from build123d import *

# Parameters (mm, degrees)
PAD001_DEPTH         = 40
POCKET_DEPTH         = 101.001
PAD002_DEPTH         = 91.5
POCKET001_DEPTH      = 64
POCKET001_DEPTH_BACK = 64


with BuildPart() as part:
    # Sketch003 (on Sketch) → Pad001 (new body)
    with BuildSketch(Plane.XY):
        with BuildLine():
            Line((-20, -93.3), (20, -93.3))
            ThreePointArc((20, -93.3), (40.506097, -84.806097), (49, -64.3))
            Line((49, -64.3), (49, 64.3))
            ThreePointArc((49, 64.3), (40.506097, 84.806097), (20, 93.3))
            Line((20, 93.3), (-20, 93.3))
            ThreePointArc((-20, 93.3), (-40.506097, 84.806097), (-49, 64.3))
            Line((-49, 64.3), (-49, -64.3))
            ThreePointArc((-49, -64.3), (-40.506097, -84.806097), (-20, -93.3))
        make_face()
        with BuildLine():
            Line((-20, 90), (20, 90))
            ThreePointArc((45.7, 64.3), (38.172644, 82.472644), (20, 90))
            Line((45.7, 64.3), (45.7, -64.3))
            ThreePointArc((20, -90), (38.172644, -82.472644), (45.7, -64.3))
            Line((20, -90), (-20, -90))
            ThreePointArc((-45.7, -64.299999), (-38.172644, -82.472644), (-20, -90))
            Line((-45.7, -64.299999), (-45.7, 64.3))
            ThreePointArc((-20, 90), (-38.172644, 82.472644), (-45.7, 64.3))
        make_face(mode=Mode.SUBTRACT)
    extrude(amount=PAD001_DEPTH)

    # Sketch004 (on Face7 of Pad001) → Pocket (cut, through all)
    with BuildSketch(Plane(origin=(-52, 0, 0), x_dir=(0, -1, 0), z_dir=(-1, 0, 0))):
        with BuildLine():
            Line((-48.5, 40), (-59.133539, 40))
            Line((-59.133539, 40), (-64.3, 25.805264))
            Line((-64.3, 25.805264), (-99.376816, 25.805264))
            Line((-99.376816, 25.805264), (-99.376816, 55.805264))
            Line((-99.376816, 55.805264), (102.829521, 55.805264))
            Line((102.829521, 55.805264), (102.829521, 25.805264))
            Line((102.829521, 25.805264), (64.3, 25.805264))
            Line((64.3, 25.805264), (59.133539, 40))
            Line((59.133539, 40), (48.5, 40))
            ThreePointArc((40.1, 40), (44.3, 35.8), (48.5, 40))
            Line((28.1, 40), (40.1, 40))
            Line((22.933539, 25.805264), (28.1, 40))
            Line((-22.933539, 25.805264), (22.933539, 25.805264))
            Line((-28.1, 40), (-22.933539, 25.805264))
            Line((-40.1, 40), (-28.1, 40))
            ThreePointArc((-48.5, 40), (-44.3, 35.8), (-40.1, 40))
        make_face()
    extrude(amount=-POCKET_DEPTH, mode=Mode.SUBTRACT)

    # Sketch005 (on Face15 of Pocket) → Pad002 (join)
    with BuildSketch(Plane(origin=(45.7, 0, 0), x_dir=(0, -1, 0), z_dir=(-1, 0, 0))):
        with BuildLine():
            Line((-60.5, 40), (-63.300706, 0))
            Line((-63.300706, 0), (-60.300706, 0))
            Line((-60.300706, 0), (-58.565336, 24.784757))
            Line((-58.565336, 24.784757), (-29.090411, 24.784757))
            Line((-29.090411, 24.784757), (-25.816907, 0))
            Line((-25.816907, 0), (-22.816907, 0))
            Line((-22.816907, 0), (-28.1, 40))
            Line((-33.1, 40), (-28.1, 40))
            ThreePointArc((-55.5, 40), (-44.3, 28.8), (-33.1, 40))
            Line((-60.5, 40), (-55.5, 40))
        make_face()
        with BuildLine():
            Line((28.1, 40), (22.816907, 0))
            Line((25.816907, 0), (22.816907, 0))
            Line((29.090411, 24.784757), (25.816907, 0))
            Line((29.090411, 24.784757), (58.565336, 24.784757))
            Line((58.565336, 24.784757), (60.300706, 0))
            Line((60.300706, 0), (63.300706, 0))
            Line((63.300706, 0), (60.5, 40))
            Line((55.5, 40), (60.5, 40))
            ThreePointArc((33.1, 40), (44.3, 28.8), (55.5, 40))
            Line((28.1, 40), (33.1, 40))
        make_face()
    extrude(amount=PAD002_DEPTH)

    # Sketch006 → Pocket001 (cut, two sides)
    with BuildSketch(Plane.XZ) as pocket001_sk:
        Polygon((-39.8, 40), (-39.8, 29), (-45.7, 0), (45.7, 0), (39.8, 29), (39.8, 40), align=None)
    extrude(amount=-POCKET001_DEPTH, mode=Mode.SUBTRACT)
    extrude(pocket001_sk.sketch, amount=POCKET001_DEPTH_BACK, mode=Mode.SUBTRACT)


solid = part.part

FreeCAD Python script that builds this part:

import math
import FreeCAD as App
import Part
import Sketcher

V = App.Vector
Q = App.Units.Quantity


def add_polygon(sketch, points):
    """Adds a closed chain of lines whose ends are joined by coincident constraints."""
    first, n = sketch.GeometryCount, len(points)
    for a, b in zip(points, points[1:] + points[:1]):
        sketch.addGeometry(Part.LineSegment(App.Vector(*a, 0), App.Vector(*b, 0)), False)
    for i in range(n):
        sketch.addConstraint(Sketcher.Constraint("Coincident", first + i, 2, first + (i + 1) % n, 1))

doc = App.newDocument("Part")
body = doc.addObject("PartDesign::Body", "Body")

# Sketch on XY plane
sketch1 = body.newObject("Sketcher::SketchObject", "Sketch")
sketch1.AttachmentSupport = (doc.getObject("XY_Plane"), [""])
sketch1.MapMode = "FlatFace"
sketch1.addGeometry([
    Part.LineSegment(V(-20, -93, 0), V(20, -93, 0)),  # 0
    Part.ArcOfCircle(Part.Circle(V(20, -64, 0), V(0, 0, 1), 29), math.radians(-90), math.radians(0)),  # 1
    Part.LineSegment(V(49, -64, 0), V(49, 64, 0)),  # 2
    Part.ArcOfCircle(Part.Circle(V(20, 64, 0), V(0, 0, 1), 29), math.radians(0), math.radians(90)),  # 3
    Part.LineSegment(V(20, 93, 0), V(-20, 93, 0)),  # 4
    Part.ArcOfCircle(Part.Circle(V(-20, 64, 0), V(0, 0, 1), 29), math.radians(90), math.radians(180)),  # 5
    Part.LineSegment(V(-49, 64, 0), V(-49, -64, 0)),  # 6
    Part.ArcOfCircle(Part.Circle(V(-20, -64, 0), V(0, 0, 1), 29), math.radians(180), math.radians(270)),  # 7
    Part.ArcOfCircle(Part.Circle(V(-20, 64, 0), V(0, 0, 1), 26), math.radians(90), math.radians(180)),  # 8
    Part.LineSegment(V(-20, 90, 0), V(20, 90, 0)),  # 9
    Part.ArcOfCircle(Part.Circle(V(20, 64, 0), V(0, 0, 1), 26), math.radians(0), math.radians(90)),  # 10
    Part.LineSegment(V(46, 64, 0), V(46, -64, 0)),  # 11
    Part.ArcOfCircle(Part.Circle(V(20, -64, 0), V(0, 0, 1), 26), math.radians(-90), math.radians(0)),  # 12
    Part.LineSegment(V(20, -90, 0), V(-20, -90, 0)),  # 13
    Part.ArcOfCircle(Part.Circle(V(-20, -64, 0), V(0, 0, 1), 26), math.radians(180), math.radians(270)),  # 14
    Part.LineSegment(V(-46, -64, 0), V(-46, 64, 0)),  # 15
], False)
sketch1.addConstraint([
    Sketcher.Constraint("Tangent", 0, 2, 1, 1),
    Sketcher.Constraint("Tangent", 1, 2, 2, 1),
    Sketcher.Constraint("Tangent", 2, 2, 3, 1),
    Sketcher.Constraint("Tangent", 3, 2, 4, 1),
    Sketcher.Constraint("Tangent", 4, 2, 5, 1),
    Sketcher.Constraint("Tangent", 5, 2, 6, 1),
    Sketcher.Constraint("Tangent", 6, 2, 7, 1),
    Sketcher.Constraint("Tangent", 7, 2, 0, 1),
    Sketcher.Constraint("Tangent", 8, 1, 9, 1),
    Sketcher.Constraint("Tangent", 9, 2, 10, 2),
    Sketcher.Constraint("Tangent", 10, 1, 11, 1),
    Sketcher.Constraint("Tangent", 11, 2, 12, 2),
    Sketcher.Constraint("Tangent", 12, 1, 13, 1),
    Sketcher.Constraint("Tangent", 13, 2, 14, 2),
    Sketcher.Constraint("Tangent", 14, 1, 15, 1),
    Sketcher.Constraint("Tangent", 15, 2, 8, 2),
    Sketcher.Constraint("Horizontal", 0),
    Sketcher.Constraint("Vertical", 2),
    Sketcher.Constraint("Horizontal", 4),
    Sketcher.Constraint("Vertical", 6),
    Sketcher.Constraint("Horizontal", 9),
    Sketcher.Constraint("Vertical", 11),
    Sketcher.Constraint("Horizontal", 13),
    Sketcher.Constraint("Vertical", 15),
    Sketcher.Constraint("Coincident", 8, 3, 5, 3),
    Sketcher.Constraint("Coincident", 10, 3, 3, 3),
    Sketcher.Constraint("Coincident", 12, 3, 1, 3),
    Sketcher.Constraint("Equal", 1, 3),
    Sketcher.Constraint("Equal", 3, 5),
    Sketcher.Constraint("Equal", 5, 7),
    Sketcher.Constraint("Equal", 12, 14),
    Sketcher.Constraint("Symmetric", 1, 3, 5, 3, -1, 1),
    Sketcher.Constraint("Radius", 1, 28.999999),
    Sketcher.Constraint("Radius", 8, 25.700001),
    Sketcher.Constraint("DistanceX", 0, 1, 0, 2, 40.0),
    Sketcher.Constraint("DistanceY", 2, 1, 2, 2, 128.6),
])
pad1 = body.newObject("PartDesign::Pad", "Pad")
pad1.Profile = sketch1
pad1.Length = 40

# Sketch on YZ plane
sketch2 = body.newObject("Sketcher::SketchObject", "Sketch001")
sketch2.AttachmentSupport = (doc.getObject("YZ_Plane"), [""])
sketch2.MapMode = "FlatFace"
sketch2.AttachmentOffset = App.Placement(V(0, 0, -52), App.Rotation())
sketch2.addGeometry([
    Part.LineSegment(V(59.1, 40, 0), V(48.5, 40, 0)),  # 0
    Part.ArcOfCircle(Part.Circle(V(44.3, 40, 0), V(0, 0, 1), 4.2), math.radians(180), math.radians(360)),  # 1
    Part.LineSegment(V(40.1, 40, 0), V(28.1, 40, 0)),  # 2
    Part.LineSegment(V(28.1, 40, 0), V(22.9, 25.8, 0)),  # 3
    Part.LineSegment(V(22.9, 25.8, 0), V(-22.9, 25.8, 0)),  # 4
    Part.LineSegment(V(-22.9, 25.8, 0), V(-28.1, 40, 0)),  # 5
    Part.LineSegment(V(-28.1, 40, 0), V(-40.1, 40, 0)),  # 6
    Part.ArcOfCircle(Part.Circle(V(-44.3, 40, 0), V(0, 0, 1), 4.2), math.radians(180), math.radians(360)),  # 7
    Part.LineSegment(V(-48.5, 40, 0), V(-59.1, 40, 0)),  # 8
    Part.LineSegment(V(-59.1, 40, 0), V(-64.3, 25.8, 0)),  # 9
    Part.LineSegment(V(-64.3, 25.8, 0), V(-102.8, 25.8, 0)),  # 10
    Part.LineSegment(V(-102.8, 25.8, 0), V(-102.8, 55.8, 0)),  # 11
    Part.LineSegment(V(-102.8, 55.8, 0), V(99.4, 55.8, 0)),  # 12
    Part.LineSegment(V(99.4, 55.8, 0), V(99.4, 25.8, 0)),  # 13
    Part.LineSegment(V(99.4, 25.8, 0), V(64.3, 25.8, 0)),  # 14
    Part.LineSegment(V(64.3, 25.8, 0), V(59.1, 40, 0)),  # 15
], False)
sketch2.addConstraint([
    Sketcher.Constraint("Coincident", 0, 2, 1, 2),
    Sketcher.Constraint("Coincident", 1, 1, 2, 1),
    Sketcher.Constraint("Coincident", 2, 2, 3, 1),
    Sketcher.Constraint("Coincident", 3, 2, 4, 1),
    Sketcher.Constraint("Coincident", 4, 2, 5, 1),
    Sketcher.Constraint("Coincident", 5, 2, 6, 1),
    Sketcher.Constraint("Coincident", 6, 2, 7, 2),
    Sketcher.Constraint("Coincident", 7, 1, 8, 1),
    Sketcher.Constraint("Coincident", 8, 2, 9, 1),
    Sketcher.Constraint("Coincident", 9, 2, 10, 1),
    Sketcher.Constraint("Coincident", 10, 2, 11, 1),
    Sketcher.Constraint("Coincident", 11, 2, 12, 1),
    Sketcher.Constraint("Coincident", 12, 2, 13, 1),
    Sketcher.Constraint("Coincident", 13, 2, 14, 1),
    Sketcher.Constraint("Coincident", 14, 2, 15, 1),
    Sketcher.Constraint("Coincident", 15, 2, 0, 1),
    Sketcher.Constraint("Horizontal", 0),
    Sketcher.Constraint("Horizontal", 2),
    Sketcher.Constraint("Horizontal", 4),
    Sketcher.Constraint("Horizontal", 6),
    Sketcher.Constraint("Horizontal", 8),
    Sketcher.Constraint("Horizontal", 10),
    Sketcher.Constraint("Vertical", 11),
    Sketcher.Constraint("Horizontal", 12),
    Sketcher.Constraint("Vertical", 13),
    Sketcher.Constraint("Horizontal", 14),
    Sketcher.Constraint("Equal", 1, 7),
    Sketcher.Constraint("Symmetric", 1, 3, 7, 3, -2),
    Sketcher.Constraint("Symmetric", 2, 2, 5, 2, -2),
    Sketcher.Constraint("Symmetric", 9, 2, 14, 2, -2),
    Sketcher.Constraint("Symmetric", 8, 2, 15, 2, -2),
    Sketcher.Constraint("Parallel", 3, 9),
    Sketcher.Constraint("Parallel", 5, 15),
    Sketcher.Constraint("Horizontal", 7, 3, 0, 2),
    Sketcher.Constraint("Horizontal", 0, 2, 1, 1),
    Sketcher.Constraint("Horizontal", 4, 2, 9, 2),
    Sketcher.Constraint("Radius", 1, 4.2),
    Sketcher.Constraint("DistanceX", 2, 2, 2, 1, 12.0),
    Sketcher.Constraint("DistanceY", 11, 1, 11, 2, 30.0),
    Sketcher.Constraint("Angle", 3, Q("-109.999999 deg")),
    Sketcher.Constraint("DistanceY", -1, 1, 1, 3, 40.0),
    Sketcher.Constraint("DistanceX", 9, 2, 7, 3, 20.0),
    Sketcher.Constraint("DistanceX", -1, 1, 1, 3, 44.3),
    Sketcher.Constraint("DistanceX", 0, 2, 0, 1, 10.633539),
    Sketcher.Constraint("DistanceX", 10, 2, 10, 1, 38.529521),
    Sketcher.Constraint("DistanceX", 12, 1, 12, 2, 202.206337),
])
pocket1 = body.newObject("PartDesign::Pocket", "Pocket")
pocket1.Profile = sketch2
pocket1.Type = "ThroughAll"
pocket1.Reversed = True

# Sketch on YZ plane
sketch3 = body.newObject("Sketcher::SketchObject", "Sketch002")
sketch3.AttachmentSupport = (doc.getObject("YZ_Plane"), [""])
sketch3.MapMode = "FlatFace"
sketch3.AttachmentOffset = App.Placement(V(0, 0, 45.7), App.Rotation())
sketch3.addGeometry([
    Part.LineSegment(V(60.5, 40, 0), V(63.3, 0, 0)),  # 0
    Part.LineSegment(V(63.3, 0, 0), V(60.3, 0, 0)),  # 1
    Part.LineSegment(V(60.3, 0, 0), V(58.6, 24.8, 0)),  # 2
    Part.LineSegment(V(58.6, 24.8, 0), V(29.1, 24.8, 0)),  # 3
    Part.LineSegment(V(29.1, 24.8, 0), V(25.8, 0, 0)),  # 4
    Part.LineSegment(V(25.8, 0, 0), V(22.8, 0, 0)),  # 5
    Part.LineSegment(V(22.8, 0, 0), V(28.1, 40, 0)),  # 6
    Part.LineSegment(V(28.1, 40, 0), V(33.1, 40, 0)),  # 7
    Part.ArcOfCircle(Part.Circle(V(44.3, 40, 0), V(0, 0, 1), 11.2), math.radians(180), math.radians(360)),  # 8
    Part.LineSegment(V(55.5, 40, 0), V(60.5, 40, 0)),  # 9
    Part.LineSegment(V(-28.1, 40, 0), V(-22.8, 0, 0)),  # 10
    Part.LineSegment(V(-22.8, 0, 0), V(-25.8, 0, 0)),  # 11
    Part.LineSegment(V(-25.8, 0, 0), V(-29.1, 24.8, 0)),  # 12
    Part.LineSegment(V(-29.1, 24.8, 0), V(-58.6, 24.8, 0)),  # 13
    Part.LineSegment(V(-58.6, 24.8, 0), V(-60.3, 0, 0)),  # 14
    Part.LineSegment(V(-60.3, 0, 0), V(-63.3, 0, 0)),  # 15
    Part.LineSegment(V(-63.3, 0, 0), V(-60.5, 40, 0)),  # 16
    Part.LineSegment(V(-60.5, 40, 0), V(-55.5, 40, 0)),  # 17
    Part.ArcOfCircle(Part.Circle(V(-44.3, 40, 0), V(0, 0, 1), 11.2), math.radians(180), math.radians(360)),  # 18
    Part.LineSegment(V(-33.1, 40, 0), V(-28.1, 40, 0)),  # 19
], False)
sketch3.addConstraint([
    Sketcher.Constraint("Coincident", 0, 2, 1, 1),
    Sketcher.Constraint("Coincident", 1, 2, 2, 1),
    Sketcher.Constraint("Coincident", 2, 2, 3, 1),
    Sketcher.Constraint("Coincident", 3, 2, 4, 1),
    Sketcher.Constraint("Coincident", 4, 2, 5, 1),
    Sketcher.Constraint("Coincident", 5, 2, 6, 1),
    Sketcher.Constraint("Coincident", 6, 2, 7, 1),
    Sketcher.Constraint("Coincident", 7, 2, 8, 1),
    Sketcher.Constraint("Coincident", 8, 2, 9, 1),
    Sketcher.Constraint("Coincident", 9, 2, 0, 1),
    Sketcher.Constraint("Coincident", 10, 2, 11, 1),
    Sketcher.Constraint("Coincident", 11, 2, 12, 1),
    Sketcher.Constraint("Coincident", 12, 2, 13, 1),
    Sketcher.Constraint("Coincident", 13, 2, 14, 1),
    Sketcher.Constraint("Coincident", 14, 2, 15, 1),
    Sketcher.Constraint("Coincident", 15, 2, 16, 1),
    Sketcher.Constraint("Coincident", 16, 2, 17, 1),
    Sketcher.Constraint("Coincident", 17, 2, 18, 1),
    Sketcher.Constraint("Coincident", 18, 2, 19, 1),
    Sketcher.Constraint("Coincident", 19, 2, 10, 1),
    Sketcher.Constraint("Horizontal", 1),
    Sketcher.Constraint("Horizontal", 3),
    Sketcher.Constraint("Horizontal", 5),
    Sketcher.Constraint("Horizontal", 7),
    Sketcher.Constraint("Horizontal", 9),
    Sketcher.Constraint("Horizontal", 11),
    Sketcher.Constraint("Horizontal", 13),
    Sketcher.Constraint("Horizontal", 15),
    Sketcher.Constraint("Horizontal", 17),
    Sketcher.Constraint("Horizontal", 19),
    Sketcher.Constraint("Equal", 8, 18),
    Sketcher.Constraint("Symmetric", 5, 2, 10, 2, -1, 1),
    Sketcher.Constraint("Symmetric", 1, 2, 14, 2, -1, 1),
    Sketcher.Constraint("Symmetric", 8, 3, 18, 3, -2),
    Sketcher.Constraint("Symmetric", 4, 2, 11, 2, -2),
    Sketcher.Constraint("Symmetric", 3, 2, 12, 2, -2),
    Sketcher.Constraint("Symmetric", 0, 2, 15, 2, -2),
    Sketcher.Constraint("Symmetric", 9, 2, 16, 2, -2),
    Sketcher.Constraint("Symmetric", 6, 2, 19, 2, -2),
    Sketcher.Constraint("Parallel", 0, 2),
    Sketcher.Constraint("Parallel", 4, 6),
    Sketcher.Constraint("Parallel", 14, 16),
    Sketcher.Constraint("Horizontal", 18, 3, 6, 2),
    Sketcher.Constraint("Horizontal", 7, 2, 8, 2),
    Sketcher.Constraint("Equal", 1, 5),
    Sketcher.Constraint("Equal", 7, 9),
    Sketcher.Constraint("Radius", 8, 11.2),
    Sketcher.Constraint("DistanceX", 1, 2, 1, 1, 3.0),
    Sketcher.Constraint("DistanceX", 7, 1, 7, 2, 5.0),
    Sketcher.Constraint("Distance", 4, 25.0),
    Sketcher.Constraint("DistanceY", -1, 1, 8, 3, 40.0),
    Sketcher.Constraint("DistanceX", -1, 1, 8, 3, 44.3),
    Sketcher.Constraint("DistanceX", 4, 2, 1, 2, 34.483799),
    Sketcher.Constraint("Distance", 0, 40.09793),
])
pad2 = body.newObject("PartDesign::Pad", "Pad001")
pad2.Profile = sketch3
pad2.Length = 91.5
pad2.Reversed = True

# Sketch on XZ plane
sketch4 = body.newObject("Sketcher::SketchObject", "Sketch003")
sketch4.AttachmentSupport = (doc.getObject("XZ_Plane"), [""])
sketch4.MapMode = "FlatFace"
add_polygon(sketch4, [(-40, 40), (-40, 29), (-46, 0), (46, 0), (40, 29), (40, 40)])  # lines 0-5
sketch4.addConstraint([
    Sketcher.Constraint("Vertical", 0),
    Sketcher.Constraint("Horizontal", 2),
    Sketcher.Constraint("Vertical", 4),
    Sketcher.Constraint("Horizontal", 5),
    Sketcher.Constraint("Symmetric", 1, 2, 2, 2, -1, 1),
    Sketcher.Constraint("Symmetric", 0, 2, 3, 2, -2),
    Sketcher.Constraint("DistanceY", 0, 2, 0, 1, 11.0),
    Sketcher.Constraint("DistanceX", 2, 1, 2, 2, 91.4),
    Sketcher.Constraint("DistanceX", 5, 2, 5, 1, 79.6),
    Sketcher.Constraint("DistanceY", -1, 1, 0, 2, 29.0),
])
pocket2 = body.newObject("PartDesign::Pocket", "Pocket001")
pocket2.Profile = sketch4
pocket2.Type = "TwoLengths"
pocket2.Length = 64
pocket2.Length2 = 64

doc.recompute()
